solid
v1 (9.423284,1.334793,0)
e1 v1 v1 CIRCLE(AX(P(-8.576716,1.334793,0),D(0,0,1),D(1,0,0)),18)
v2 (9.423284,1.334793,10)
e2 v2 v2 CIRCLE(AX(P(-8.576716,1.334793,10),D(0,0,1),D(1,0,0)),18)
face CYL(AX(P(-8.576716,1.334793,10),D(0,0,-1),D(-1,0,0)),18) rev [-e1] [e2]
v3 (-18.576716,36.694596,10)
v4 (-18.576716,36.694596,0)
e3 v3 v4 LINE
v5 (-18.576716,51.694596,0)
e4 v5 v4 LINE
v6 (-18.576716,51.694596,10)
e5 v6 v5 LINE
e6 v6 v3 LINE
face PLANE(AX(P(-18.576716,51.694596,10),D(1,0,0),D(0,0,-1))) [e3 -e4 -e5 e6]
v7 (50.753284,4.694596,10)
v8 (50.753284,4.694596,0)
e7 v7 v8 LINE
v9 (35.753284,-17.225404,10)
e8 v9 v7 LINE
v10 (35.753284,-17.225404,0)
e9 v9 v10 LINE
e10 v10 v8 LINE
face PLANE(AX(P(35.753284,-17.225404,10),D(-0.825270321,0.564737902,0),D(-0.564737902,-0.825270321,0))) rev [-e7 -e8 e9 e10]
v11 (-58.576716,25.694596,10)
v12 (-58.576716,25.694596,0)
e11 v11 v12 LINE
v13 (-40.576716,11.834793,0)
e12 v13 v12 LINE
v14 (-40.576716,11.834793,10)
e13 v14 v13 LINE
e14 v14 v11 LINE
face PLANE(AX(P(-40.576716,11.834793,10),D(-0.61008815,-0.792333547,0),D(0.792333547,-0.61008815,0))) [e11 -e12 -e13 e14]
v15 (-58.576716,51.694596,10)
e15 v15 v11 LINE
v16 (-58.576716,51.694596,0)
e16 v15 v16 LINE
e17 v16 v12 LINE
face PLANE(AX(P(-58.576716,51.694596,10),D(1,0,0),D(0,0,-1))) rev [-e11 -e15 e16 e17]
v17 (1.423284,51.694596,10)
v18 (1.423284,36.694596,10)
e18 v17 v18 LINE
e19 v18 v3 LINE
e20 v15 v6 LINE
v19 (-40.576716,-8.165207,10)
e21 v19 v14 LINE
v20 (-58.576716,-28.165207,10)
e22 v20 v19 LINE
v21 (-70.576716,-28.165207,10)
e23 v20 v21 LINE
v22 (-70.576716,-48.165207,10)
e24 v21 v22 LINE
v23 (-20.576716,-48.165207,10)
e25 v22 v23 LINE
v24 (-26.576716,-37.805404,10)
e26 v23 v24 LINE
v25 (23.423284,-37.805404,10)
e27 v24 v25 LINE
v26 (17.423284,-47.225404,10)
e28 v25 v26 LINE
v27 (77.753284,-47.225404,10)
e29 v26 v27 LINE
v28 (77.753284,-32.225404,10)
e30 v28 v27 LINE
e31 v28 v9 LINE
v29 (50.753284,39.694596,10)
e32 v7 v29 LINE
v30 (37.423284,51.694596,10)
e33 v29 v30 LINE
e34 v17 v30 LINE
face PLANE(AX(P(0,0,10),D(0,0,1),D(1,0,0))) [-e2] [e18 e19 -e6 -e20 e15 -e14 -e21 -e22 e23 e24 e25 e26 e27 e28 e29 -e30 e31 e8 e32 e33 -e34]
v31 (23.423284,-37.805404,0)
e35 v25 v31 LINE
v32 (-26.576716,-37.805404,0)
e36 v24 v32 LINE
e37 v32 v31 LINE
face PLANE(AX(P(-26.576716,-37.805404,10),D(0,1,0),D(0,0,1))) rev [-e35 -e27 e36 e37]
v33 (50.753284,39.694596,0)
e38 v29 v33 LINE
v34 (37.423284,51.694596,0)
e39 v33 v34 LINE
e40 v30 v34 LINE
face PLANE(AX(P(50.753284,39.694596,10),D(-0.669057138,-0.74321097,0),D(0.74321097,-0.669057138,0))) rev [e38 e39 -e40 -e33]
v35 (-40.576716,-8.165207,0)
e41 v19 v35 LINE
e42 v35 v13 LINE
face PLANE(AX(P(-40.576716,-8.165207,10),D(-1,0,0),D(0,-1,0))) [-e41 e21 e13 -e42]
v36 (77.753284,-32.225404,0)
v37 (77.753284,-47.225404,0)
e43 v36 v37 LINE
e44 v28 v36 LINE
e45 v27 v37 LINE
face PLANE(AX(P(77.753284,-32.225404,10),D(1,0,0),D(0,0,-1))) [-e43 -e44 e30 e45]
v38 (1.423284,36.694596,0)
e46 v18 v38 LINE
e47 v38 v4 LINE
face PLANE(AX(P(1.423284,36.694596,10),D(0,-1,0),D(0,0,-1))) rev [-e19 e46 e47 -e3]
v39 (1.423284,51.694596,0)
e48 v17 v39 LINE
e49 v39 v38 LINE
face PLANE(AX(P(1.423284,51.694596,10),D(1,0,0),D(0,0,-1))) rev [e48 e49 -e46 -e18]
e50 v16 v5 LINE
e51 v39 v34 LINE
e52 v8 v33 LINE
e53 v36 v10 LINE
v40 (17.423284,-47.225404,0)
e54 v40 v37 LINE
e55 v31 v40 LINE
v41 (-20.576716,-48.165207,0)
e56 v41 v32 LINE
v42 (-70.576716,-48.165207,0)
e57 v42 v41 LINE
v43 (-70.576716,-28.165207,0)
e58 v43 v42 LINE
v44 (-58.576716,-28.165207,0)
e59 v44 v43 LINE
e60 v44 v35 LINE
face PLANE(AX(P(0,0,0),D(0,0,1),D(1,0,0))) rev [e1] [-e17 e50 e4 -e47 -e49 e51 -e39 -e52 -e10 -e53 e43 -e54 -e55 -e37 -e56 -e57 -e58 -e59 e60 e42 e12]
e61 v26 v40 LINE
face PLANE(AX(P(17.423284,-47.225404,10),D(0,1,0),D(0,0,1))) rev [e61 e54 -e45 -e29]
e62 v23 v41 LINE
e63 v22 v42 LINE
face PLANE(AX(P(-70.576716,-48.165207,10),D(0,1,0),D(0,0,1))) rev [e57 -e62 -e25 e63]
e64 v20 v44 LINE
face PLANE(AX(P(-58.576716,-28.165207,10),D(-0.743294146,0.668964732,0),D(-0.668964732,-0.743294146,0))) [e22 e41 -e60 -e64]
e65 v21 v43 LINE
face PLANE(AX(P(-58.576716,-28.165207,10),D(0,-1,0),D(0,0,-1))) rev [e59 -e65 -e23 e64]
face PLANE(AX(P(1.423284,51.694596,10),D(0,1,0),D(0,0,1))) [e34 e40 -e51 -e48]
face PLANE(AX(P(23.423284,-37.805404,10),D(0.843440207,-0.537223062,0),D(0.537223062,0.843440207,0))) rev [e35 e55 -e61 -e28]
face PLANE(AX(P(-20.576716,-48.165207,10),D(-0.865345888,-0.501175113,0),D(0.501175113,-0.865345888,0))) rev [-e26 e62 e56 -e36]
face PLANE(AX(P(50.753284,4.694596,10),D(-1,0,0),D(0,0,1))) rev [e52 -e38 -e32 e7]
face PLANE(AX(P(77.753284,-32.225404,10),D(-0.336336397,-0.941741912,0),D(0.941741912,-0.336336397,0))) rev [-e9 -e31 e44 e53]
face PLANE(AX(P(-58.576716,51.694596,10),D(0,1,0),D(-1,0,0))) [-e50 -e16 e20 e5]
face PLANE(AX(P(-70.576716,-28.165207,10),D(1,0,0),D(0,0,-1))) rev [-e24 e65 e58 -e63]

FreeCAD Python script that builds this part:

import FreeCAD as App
import Part
import Sketcher
from FreeCAD import Vector


def add_polygon(sketch, points):
    """Adds a closed chain of lines whose ends are joined by coincident constraints."""
    first, n = sketch.GeometryCount, len(points)
    for a, b in zip(points, points[1:] + points[:1]):
        sketch.addGeometry(Part.LineSegment(App.Vector(*a, 0), App.Vector(*b, 0)), False)
    for i in range(n):
        sketch.addConstraint(Sketcher.Constraint("Coincident", first + i, 2, first + (i + 1) % n, 1))

doc = App.newDocument("Part")
body = doc.addObject("PartDesign::Body", "Body")

# Sketch on XY plane
sketch1 = doc.addObject("Sketcher::SketchObject", "Sketch")
body.addObject(sketch1)
sketch1.AttachmentSupport = (doc.XY_Plane, [""])
sketch1.MapMode = "FlatFace"
add_polygon(sketch1, [(17, -47), (78, -47), (78, -32), (36, -17), (51, 5), (51, 40), (37, 52), (1, 52), (1, 37), (-19, 37), (-19, 52), (-59, 52), (-59, 26), (-41, 12), (-41, -8), (-59, -28), (-71, -28), (-71, -48), (-21, -48), (-27, -38), (23, -38)])  # lines 0-20
sketch1.addGeometry(Part.Circle(Vector(-9, 1, 0), Vector(0, 0, 1), 18), False)  # 21
sketch1.addConstraint(Sketcher.Constraint("Horizontal", 0))
sketch1.addConstraint(Sketcher.Constraint("Vertical", 1))
sketch1.addConstraint(Sketcher.Constraint("Vertical", 4))
sketch1.addConstraint(Sketcher.Constraint("Horizontal", 6))
sketch1.addConstraint(Sketcher.Constraint("Vertical", 7))
sketch1.addConstraint(Sketcher.Constraint("Horizontal", 8))
sketch1.addConstraint(Sketcher.Constraint("Vertical", 9))
sketch1.addConstraint(Sketcher.Constraint("Horizontal", 10))
sketch1.addConstraint(Sketcher.Constraint("Vertical", 11))
sketch1.addConstraint(Sketcher.Constraint("Vertical", 13))
sketch1.addConstraint(Sketcher.Constraint("Horizontal", 15))
sketch1.addConstraint(Sketcher.Constraint("Vertical", 16))
sketch1.addConstraint(Sketcher.Constraint("Horizontal", 17))
sketch1.addConstraint(Sketcher.Constraint("Horizontal", 19))
sketch1.addConstraint(Sketcher.Constraint("Horizontal", 6, 2, 9, 2))
sketch1.addConstraint(Sketcher.Constraint("Vertical", 11, 2, 14, 2))
sketch1.addConstraint(Sketcher.Constraint("Equal", 17, 19))
sketch1.addConstraint(Sketcher.Constraint("Equal", 1, 7))
sketch1.addConstraint(Sketcher.Constraint("Equal", 8, 13))
sketch1.addConstraint(Sketcher.Constraint("Equal", 13, 16))
sketch1.addConstraint(Sketcher.Constraint("Diameter", 21, 36.0))
sketch1.addConstraint(Sketcher.Constraint("DistanceX", 6, 2, 6, 1, 36.0))
sketch1.addConstraint(Sketcher.Constraint("DistanceX", 8, 2, 8, 1, 20.0))
sketch1.addConstraint(Sketcher.Constraint("DistanceX", 10, 2, 10, 1, 40.0))
sketch1.addConstraint(Sketcher.Constraint("DistanceX", 15, 2, 15, 1, 12.0))
sketch1.addConstraint(Sketcher.Constraint("DistanceX", 17, 1, 17, 2, 50.0))
sketch1.addConstraint(Sketcher.Constraint("DistanceY", 1, 1, 1, 2, 15.0))
sketch1.addConstraint(Sketcher.Constraint("DistanceY", 4, 1, 4, 2, 35.0))
sketch1.addConstraint(Sketcher.Constraint("DistanceY", 11, 2, 11, 1, 26.0))
sketch1.addConstraint(Sketcher.Constraint("DistanceX", 2, 2, 1, 2, 42.0))
sketch1.addConstraint(Sketcher.Constraint("DistanceY", 1, 2, 2, 2, 15.0))
sketch1.addConstraint(Sketcher.Constraint("DistanceX", 2, 2, 3, 2, 15.0))
sketch1.addConstraint(Sketcher.Constraint("DistanceY", 4, 2, 5, 2, 12.0))
sketch1.addConstraint(Sketcher.Constraint("DistanceX", 21, 3, 5, 2, 46.0))
sketch1.addConstraint(Sketcher.Constraint("DistanceX", 11, 2, 12, 2, 18.0))
sketch1.addConstraint(Sketcher.Constraint("DistanceY", 14, 2, 13, 2, 20.0))
sketch1.addConstraint(Sketcher.Constraint("DistanceX", 18, 2, 17, 2, 6.0))
sketch1.addConstraint(Sketcher.Constraint("DistanceX", 20, 2, 19, 2, 6.0))
sketch1.addConstraint(Sketcher.Constraint("DistanceX", 0, 1, 0, 2, 60.33))
sketch1.addConstraint(Sketcher.Constraint("DistanceY", 21, 3, 12, 2, 10.5))
sketch1.addConstraint(Sketcher.Constraint("DistanceY", 19, 2, 3, 2, 42.5))
sketch1.addConstraint(Sketcher.Constraint("DistanceY", 2, 2, 3, 2, 21.92))
sketch1.addConstraint(Sketcher.Constraint("Distance", 12, 22.717705))
sketch1.addConstraint(Sketcher.Constraint("DistanceX", 21, 3, -1, 1, 8.576716))
sketch1.addConstraint(Sketcher.Constraint("DistanceY", -1, 1, 21, 3, 1.334793))
pad1 = doc.addObject("PartDesign::Pad", "Pad")
body.addObject(pad1)
pad1.Profile = sketch1
pad1.Length = 10

doc.recompute()
